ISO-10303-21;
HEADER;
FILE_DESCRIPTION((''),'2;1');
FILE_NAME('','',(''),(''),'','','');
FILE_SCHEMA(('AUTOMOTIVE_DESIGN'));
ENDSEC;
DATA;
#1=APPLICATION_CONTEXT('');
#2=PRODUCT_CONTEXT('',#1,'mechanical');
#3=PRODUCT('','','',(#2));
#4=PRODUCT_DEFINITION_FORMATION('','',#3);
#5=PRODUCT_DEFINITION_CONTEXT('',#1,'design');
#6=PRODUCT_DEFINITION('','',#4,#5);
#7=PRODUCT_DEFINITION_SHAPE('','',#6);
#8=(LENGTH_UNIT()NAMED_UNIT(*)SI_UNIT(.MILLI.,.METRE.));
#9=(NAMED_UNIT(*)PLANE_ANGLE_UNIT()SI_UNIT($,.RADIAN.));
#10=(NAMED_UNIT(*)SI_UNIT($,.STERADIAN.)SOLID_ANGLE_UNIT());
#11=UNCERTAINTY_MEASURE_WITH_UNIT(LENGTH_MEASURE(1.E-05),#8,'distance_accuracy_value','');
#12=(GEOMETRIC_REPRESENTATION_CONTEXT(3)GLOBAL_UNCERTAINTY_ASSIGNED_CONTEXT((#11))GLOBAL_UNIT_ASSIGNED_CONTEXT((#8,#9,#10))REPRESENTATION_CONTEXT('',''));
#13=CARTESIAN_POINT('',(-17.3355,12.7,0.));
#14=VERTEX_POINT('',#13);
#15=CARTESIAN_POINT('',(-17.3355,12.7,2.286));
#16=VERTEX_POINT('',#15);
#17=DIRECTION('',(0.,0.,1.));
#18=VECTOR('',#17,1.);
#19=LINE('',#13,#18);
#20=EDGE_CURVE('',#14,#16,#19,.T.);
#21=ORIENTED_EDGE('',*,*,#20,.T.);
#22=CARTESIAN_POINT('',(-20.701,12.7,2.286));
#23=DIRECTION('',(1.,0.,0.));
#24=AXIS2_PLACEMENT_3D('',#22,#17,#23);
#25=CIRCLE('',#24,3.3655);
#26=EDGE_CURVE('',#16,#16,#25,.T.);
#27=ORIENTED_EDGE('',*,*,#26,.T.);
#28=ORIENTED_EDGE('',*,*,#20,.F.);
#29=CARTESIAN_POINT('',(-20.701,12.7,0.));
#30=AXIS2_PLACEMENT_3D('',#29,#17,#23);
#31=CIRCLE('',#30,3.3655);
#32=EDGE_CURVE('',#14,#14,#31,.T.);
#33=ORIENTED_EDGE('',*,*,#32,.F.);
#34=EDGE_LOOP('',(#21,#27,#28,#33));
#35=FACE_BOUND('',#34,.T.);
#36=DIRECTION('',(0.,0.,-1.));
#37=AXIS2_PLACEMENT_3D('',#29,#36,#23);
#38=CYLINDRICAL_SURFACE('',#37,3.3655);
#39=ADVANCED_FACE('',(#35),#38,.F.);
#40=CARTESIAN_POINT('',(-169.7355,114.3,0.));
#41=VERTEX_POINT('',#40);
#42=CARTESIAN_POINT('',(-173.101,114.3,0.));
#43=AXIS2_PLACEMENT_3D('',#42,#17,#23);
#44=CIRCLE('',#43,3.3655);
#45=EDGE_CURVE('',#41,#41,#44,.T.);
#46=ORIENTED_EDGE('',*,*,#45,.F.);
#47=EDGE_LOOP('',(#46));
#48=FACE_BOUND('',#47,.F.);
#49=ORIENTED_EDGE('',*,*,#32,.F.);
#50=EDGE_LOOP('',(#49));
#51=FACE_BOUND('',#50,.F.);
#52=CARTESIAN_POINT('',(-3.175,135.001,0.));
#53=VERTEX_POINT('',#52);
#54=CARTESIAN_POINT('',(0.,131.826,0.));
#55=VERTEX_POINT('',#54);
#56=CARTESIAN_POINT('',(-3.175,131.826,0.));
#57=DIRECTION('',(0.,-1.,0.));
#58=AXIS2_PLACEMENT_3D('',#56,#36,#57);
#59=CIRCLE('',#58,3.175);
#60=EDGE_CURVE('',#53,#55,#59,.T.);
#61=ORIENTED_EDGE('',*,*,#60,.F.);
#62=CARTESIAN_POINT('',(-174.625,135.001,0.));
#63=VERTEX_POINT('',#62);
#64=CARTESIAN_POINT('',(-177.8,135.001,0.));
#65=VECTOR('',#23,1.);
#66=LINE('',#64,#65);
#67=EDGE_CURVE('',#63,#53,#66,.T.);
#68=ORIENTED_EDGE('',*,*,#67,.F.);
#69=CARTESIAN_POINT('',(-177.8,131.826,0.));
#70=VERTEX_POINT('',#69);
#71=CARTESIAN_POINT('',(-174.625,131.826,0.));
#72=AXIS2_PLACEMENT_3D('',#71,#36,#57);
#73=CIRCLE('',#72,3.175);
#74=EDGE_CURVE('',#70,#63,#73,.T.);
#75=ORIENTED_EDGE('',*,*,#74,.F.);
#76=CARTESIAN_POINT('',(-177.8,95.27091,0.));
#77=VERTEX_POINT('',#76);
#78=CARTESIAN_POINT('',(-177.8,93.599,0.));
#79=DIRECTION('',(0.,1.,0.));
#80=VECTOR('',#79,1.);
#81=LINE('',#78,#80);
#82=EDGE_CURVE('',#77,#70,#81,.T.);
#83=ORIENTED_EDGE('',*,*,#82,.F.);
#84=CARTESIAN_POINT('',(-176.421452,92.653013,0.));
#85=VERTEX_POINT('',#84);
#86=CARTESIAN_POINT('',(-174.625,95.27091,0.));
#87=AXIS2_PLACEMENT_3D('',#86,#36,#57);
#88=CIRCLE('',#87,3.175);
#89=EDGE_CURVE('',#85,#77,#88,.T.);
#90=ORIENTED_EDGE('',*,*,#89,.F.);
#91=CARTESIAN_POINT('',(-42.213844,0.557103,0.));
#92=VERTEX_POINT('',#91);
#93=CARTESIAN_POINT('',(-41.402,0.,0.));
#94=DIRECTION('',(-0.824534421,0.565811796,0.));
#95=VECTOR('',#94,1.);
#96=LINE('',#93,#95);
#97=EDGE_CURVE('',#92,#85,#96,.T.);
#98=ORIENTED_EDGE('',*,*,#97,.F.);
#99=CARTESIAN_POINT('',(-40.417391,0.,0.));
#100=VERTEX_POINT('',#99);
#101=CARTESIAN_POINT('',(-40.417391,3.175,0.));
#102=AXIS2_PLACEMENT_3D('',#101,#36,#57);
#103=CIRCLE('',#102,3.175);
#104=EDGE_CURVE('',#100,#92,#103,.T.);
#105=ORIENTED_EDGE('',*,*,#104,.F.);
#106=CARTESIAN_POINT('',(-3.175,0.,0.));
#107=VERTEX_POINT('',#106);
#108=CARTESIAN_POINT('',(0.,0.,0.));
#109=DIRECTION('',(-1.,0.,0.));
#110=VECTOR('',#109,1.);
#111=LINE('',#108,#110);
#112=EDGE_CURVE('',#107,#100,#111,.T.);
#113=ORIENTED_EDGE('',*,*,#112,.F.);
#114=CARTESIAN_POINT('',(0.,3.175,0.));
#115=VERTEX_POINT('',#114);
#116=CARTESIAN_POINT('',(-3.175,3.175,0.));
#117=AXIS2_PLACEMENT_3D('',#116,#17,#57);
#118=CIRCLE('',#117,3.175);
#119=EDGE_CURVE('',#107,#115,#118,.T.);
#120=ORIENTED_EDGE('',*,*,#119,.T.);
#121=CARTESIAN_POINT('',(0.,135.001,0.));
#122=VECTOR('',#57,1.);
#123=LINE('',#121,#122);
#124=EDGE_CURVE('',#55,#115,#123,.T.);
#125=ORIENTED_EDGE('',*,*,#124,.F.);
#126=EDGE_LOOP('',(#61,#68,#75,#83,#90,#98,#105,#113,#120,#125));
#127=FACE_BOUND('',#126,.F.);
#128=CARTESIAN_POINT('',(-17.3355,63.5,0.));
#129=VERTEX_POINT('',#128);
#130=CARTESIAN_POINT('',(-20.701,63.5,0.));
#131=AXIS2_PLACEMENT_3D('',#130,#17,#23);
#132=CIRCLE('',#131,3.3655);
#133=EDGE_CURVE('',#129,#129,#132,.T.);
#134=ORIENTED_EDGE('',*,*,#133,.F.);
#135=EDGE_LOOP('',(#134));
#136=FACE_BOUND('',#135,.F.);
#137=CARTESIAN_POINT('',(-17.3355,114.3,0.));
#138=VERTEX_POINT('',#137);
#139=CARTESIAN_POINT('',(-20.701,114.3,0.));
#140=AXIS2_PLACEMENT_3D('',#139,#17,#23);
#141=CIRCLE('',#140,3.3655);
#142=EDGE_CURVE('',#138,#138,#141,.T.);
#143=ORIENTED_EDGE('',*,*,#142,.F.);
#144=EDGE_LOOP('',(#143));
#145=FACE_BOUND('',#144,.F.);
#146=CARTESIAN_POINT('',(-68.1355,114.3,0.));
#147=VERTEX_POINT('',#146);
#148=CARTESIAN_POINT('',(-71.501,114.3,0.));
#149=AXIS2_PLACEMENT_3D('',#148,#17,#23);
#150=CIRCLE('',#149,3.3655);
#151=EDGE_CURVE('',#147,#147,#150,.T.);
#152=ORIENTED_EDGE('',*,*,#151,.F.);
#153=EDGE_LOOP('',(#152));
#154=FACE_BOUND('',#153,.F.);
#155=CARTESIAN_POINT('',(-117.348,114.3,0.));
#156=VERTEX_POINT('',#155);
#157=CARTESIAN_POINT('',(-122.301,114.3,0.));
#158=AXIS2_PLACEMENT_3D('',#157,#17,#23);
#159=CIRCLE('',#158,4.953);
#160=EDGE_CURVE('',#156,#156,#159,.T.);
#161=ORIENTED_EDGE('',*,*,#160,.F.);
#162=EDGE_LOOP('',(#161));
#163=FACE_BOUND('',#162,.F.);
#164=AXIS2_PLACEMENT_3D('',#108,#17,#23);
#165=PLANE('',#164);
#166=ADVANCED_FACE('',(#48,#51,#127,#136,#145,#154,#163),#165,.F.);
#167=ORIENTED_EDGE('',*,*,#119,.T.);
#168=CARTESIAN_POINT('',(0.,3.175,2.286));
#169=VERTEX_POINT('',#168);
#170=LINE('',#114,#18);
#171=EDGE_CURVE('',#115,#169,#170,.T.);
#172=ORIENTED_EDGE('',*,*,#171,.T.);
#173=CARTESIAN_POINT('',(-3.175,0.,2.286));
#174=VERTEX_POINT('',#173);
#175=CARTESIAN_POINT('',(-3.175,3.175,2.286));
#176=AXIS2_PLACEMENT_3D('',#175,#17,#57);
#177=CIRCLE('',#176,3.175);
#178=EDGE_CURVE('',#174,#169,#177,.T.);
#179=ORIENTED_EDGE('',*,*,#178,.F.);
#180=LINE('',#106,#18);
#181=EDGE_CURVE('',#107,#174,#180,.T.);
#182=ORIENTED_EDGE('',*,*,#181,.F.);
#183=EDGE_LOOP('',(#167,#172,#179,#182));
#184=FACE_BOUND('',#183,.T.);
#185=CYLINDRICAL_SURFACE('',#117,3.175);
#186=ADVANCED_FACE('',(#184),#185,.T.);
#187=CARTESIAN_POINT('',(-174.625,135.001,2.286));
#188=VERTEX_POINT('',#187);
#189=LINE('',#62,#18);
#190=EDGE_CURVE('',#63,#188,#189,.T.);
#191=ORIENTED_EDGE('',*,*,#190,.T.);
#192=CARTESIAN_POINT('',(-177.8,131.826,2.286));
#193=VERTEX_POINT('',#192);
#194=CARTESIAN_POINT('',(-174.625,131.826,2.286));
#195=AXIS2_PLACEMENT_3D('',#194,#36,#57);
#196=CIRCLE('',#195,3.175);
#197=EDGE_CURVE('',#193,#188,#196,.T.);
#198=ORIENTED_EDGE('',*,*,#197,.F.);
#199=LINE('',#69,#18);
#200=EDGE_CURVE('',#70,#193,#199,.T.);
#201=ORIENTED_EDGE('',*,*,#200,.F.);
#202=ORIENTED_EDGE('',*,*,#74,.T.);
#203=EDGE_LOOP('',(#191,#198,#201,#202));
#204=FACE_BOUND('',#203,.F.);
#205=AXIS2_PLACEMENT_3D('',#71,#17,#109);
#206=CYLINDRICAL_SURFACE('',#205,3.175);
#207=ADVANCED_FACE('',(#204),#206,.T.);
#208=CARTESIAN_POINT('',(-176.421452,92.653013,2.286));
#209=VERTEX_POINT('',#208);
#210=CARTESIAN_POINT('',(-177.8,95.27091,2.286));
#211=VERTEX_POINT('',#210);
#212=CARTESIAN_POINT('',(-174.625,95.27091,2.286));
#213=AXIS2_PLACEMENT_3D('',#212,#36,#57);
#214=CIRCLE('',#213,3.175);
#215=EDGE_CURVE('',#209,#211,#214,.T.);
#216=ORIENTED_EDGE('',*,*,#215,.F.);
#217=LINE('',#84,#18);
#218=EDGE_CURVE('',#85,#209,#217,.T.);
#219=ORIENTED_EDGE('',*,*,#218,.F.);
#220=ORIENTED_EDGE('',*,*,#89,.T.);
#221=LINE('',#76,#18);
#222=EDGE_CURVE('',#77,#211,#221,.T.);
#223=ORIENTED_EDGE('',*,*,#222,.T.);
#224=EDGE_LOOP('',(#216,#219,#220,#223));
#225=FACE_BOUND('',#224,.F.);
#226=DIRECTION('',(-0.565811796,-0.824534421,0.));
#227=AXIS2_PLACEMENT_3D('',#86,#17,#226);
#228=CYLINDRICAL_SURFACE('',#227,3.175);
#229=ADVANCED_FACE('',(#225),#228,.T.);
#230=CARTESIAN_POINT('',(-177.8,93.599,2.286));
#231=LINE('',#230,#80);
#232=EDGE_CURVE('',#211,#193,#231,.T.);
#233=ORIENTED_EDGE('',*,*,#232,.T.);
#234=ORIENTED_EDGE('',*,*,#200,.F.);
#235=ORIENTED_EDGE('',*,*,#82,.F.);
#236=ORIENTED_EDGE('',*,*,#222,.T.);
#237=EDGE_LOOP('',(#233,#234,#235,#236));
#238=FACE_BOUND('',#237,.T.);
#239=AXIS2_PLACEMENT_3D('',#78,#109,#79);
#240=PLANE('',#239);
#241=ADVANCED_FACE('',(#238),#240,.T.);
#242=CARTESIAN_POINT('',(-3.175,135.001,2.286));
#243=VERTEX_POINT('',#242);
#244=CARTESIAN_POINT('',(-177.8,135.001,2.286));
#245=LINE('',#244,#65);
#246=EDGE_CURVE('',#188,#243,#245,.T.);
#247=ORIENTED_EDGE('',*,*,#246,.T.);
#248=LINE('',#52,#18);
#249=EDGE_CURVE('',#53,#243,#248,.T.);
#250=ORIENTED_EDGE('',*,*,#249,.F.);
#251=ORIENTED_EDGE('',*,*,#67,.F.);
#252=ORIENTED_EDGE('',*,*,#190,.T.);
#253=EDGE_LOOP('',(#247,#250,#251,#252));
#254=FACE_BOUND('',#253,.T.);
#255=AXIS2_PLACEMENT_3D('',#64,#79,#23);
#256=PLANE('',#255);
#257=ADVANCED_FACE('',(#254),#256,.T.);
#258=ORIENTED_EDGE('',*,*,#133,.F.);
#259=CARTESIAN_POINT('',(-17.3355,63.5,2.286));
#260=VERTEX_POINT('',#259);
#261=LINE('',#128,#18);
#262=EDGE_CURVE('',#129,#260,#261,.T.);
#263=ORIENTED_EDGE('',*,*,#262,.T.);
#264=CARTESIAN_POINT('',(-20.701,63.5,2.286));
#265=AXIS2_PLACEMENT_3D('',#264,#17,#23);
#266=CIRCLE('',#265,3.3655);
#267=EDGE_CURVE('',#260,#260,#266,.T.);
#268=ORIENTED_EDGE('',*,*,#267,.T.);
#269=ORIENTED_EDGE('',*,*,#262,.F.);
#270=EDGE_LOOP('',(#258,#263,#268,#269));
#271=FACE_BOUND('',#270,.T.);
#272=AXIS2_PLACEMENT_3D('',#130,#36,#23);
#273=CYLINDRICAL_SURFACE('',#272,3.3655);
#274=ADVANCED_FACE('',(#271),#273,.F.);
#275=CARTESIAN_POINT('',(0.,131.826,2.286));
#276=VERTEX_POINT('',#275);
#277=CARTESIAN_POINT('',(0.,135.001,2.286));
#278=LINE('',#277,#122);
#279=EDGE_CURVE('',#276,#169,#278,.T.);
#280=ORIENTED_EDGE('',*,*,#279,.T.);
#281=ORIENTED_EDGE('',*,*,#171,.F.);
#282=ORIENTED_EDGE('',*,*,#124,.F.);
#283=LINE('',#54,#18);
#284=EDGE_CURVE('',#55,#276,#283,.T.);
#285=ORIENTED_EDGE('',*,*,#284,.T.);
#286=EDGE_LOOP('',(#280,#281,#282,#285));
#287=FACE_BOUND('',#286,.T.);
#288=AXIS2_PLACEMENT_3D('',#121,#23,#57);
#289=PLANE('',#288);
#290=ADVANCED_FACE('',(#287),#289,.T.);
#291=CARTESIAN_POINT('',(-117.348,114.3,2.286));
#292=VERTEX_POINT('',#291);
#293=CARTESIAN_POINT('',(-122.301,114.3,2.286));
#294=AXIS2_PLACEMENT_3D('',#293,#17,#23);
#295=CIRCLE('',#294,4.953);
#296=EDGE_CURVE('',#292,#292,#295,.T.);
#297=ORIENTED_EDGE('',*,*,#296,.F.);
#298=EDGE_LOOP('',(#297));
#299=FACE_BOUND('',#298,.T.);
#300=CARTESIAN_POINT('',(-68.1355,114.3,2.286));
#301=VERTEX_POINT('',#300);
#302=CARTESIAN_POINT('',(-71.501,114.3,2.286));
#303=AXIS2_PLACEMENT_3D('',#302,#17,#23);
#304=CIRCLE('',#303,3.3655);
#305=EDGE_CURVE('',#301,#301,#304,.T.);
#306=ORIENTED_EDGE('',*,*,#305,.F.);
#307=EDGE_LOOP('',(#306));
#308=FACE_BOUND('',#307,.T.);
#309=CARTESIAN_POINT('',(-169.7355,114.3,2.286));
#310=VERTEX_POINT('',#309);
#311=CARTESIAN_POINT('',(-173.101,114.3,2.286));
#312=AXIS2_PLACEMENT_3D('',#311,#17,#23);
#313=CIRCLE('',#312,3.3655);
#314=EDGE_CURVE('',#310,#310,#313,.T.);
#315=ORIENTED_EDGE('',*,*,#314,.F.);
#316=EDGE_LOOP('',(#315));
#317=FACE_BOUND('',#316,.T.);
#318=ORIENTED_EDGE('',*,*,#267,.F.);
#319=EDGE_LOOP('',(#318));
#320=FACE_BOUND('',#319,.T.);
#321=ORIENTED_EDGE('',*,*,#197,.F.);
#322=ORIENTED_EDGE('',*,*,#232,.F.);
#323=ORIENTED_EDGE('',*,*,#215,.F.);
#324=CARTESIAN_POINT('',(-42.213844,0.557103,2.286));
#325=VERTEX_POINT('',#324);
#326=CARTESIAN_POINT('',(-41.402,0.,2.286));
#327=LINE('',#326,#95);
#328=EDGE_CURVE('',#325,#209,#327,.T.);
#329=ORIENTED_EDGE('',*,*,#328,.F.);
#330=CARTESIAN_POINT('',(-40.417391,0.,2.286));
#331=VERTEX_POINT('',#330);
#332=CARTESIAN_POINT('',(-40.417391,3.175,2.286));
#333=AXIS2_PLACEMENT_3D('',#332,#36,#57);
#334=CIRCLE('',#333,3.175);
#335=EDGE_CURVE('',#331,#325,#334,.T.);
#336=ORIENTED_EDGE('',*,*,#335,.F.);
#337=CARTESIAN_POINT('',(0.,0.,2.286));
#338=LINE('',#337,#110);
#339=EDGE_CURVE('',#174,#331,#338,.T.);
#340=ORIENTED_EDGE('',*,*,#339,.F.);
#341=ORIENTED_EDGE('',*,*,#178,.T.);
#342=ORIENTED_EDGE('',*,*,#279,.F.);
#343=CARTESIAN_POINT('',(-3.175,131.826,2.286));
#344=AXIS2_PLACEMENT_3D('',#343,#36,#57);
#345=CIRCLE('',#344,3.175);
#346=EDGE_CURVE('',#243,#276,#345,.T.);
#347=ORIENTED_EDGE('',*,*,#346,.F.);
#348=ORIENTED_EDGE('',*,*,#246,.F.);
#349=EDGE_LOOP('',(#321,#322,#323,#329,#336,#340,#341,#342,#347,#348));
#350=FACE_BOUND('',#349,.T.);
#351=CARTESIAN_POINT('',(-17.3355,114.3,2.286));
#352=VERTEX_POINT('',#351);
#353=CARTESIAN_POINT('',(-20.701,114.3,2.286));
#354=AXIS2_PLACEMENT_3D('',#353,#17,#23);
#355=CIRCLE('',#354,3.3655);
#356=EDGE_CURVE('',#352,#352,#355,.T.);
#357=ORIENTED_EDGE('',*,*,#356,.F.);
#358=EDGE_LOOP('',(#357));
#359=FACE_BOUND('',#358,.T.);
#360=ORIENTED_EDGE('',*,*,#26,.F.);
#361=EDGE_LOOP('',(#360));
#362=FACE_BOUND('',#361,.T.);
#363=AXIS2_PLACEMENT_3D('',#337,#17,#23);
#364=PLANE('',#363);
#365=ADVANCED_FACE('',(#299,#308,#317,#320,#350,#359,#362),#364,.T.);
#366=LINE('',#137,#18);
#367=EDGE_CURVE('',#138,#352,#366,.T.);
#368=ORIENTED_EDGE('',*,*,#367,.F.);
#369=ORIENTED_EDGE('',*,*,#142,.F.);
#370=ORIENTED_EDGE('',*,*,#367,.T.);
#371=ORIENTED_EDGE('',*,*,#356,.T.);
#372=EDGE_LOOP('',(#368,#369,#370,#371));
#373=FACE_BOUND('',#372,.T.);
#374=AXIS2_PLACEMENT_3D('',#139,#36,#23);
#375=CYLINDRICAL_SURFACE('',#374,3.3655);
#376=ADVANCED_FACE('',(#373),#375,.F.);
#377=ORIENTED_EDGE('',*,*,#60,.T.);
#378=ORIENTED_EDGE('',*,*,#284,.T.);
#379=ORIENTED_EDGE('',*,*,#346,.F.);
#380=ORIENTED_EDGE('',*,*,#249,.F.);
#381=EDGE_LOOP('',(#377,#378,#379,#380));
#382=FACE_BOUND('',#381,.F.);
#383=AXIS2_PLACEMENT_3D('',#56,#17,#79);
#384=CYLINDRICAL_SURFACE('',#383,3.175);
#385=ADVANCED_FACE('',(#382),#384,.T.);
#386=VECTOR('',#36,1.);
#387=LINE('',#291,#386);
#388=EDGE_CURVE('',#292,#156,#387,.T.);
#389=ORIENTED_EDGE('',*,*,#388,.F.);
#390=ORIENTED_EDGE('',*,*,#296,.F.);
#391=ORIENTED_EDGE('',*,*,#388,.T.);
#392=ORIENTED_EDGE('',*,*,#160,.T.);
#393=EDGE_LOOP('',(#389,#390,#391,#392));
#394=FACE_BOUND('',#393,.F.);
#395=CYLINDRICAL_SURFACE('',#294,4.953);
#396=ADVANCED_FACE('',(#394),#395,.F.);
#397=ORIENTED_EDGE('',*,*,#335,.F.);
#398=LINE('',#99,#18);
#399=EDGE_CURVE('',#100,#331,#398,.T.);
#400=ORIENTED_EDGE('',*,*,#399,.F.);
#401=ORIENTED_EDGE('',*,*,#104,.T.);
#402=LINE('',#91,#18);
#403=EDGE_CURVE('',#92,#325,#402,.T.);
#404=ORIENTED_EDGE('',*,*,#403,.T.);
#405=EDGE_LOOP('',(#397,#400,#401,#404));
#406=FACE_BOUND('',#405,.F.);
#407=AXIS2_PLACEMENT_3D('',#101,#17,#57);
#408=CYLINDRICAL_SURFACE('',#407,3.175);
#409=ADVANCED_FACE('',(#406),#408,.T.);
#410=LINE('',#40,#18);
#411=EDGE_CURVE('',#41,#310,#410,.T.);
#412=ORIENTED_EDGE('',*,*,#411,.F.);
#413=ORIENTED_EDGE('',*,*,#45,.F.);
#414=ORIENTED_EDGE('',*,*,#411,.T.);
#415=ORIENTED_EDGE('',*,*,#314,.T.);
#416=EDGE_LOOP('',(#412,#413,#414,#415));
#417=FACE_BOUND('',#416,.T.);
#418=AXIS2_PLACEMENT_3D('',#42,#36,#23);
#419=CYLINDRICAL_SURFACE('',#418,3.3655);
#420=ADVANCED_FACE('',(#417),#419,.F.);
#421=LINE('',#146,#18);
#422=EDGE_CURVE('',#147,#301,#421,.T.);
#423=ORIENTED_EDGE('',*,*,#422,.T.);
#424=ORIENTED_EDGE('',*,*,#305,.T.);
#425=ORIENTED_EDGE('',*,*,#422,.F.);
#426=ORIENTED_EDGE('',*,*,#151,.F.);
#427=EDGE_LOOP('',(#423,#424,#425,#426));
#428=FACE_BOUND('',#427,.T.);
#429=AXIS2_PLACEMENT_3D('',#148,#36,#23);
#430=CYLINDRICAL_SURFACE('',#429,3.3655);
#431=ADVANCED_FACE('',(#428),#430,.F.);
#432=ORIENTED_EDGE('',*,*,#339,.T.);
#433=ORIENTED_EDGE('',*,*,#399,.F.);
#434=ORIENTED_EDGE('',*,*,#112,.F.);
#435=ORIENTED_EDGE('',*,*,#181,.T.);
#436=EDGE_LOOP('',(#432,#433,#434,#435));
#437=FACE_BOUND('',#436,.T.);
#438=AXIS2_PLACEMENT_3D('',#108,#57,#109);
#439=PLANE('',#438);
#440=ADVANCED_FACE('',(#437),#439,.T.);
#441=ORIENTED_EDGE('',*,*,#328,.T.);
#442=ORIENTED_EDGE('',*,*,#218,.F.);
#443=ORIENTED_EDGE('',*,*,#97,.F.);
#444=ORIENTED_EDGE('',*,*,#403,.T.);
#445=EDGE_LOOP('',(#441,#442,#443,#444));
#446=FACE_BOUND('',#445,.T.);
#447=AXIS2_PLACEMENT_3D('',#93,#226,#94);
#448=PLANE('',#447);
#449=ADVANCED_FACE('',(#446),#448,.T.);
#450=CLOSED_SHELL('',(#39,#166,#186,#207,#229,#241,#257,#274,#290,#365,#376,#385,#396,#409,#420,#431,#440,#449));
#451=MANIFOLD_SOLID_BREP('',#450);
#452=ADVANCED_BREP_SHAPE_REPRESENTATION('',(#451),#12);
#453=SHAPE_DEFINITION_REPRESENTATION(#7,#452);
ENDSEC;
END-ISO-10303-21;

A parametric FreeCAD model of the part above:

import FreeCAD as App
import Part
import Sketcher

V = App.Vector
Q = App.Units.Quantity


def edges_at(feature, points):
    """Names of the edges that pass closest to the given points."""
    edges = feature.Shape.Edges
    near = lambda p: min(range(len(edges)), key=lambda i: edges[i].distToShape(Part.Vertex(*p))[0])
    return sorted({f"Edge{near(p) + 1}" for p in points})


def add_polygon(sketch, points):
    """Adds a closed chain of lines whose ends are joined by coincident constraints."""
    first, n = sketch.GeometryCount, len(points)
    for a, b in zip(points, points[1:] + points[:1]):
        sketch.addGeometry(Part.LineSegment(App.Vector(*a, 0), App.Vector(*b, 0)), False)
    for i in range(n):
        sketch.addConstraint(Sketcher.Constraint("Coincident", first + i, 2, first + (i + 1) % n, 1))

doc = App.newDocument("Part")
params = doc.addObject("Spreadsheet::Sheet", "Params")
for row, (alias, value) in enumerate([
    ("sketch1_width", "7 in"),
    ("sketch1_diameter", "0.265 in"),
    ("sketch1_width2", "1.63 in"),
    ("sketch1_height", "5.315 in"),
    ("pad1_length", "0.09 in"),
    ("fillet_radius", "0.125 in"),
    ("sketch2_diameter", "0.39 in"),
], start=1):
    params.set(f"A{row}", alias)
    params.set(f"B{row}", "=" + value)
    params.setAlias(f"B{row}", alias)

body = doc.addObject("PartDesign::Body", "Body")

# Sketch on XY plane
sketch1 = body.newObject("Sketcher::SketchObject", "Sketch")
sketch1.AttachmentSupport = (doc.getObject("XY_Plane"), [""])
sketch1.MapMode = "FlatFace"
add_polygon(sketch1, [(-41.4, 0), (0, 0), (0, 135), (-177.8, 135), (-177.8, 93.6)])  # lines 0-4
sketch1.addGeometry(Part.Circle(V(-20.7, 12.7, 0), V(0, 0, 1), 3.4), False)  # 5
sketch1.addGeometry(Part.Circle(V(-20.7, 63.5, 0), V(0, 0, 1), 3.4), False)  # 6
sketch1.addGeometry(Part.Circle(V(-173.1, 114.3, 0), V(0, 0, 1), 3.4), False)  # 7
sketch1.addGeometry(Part.Circle(V(-122.3, 114.3, 0), V(0, 0, 1), 3.4), False)  # 8
sketch1.addGeometry(Part.Circle(V(-71.5, 114.3, 0), V(0, 0, 1), 3.4), False)  # 9
sketch1.addGeometry(Part.Circle(V(-20.7, 114.3, 0), V(0, 0, 1), 3.4), False)  # 10
sketch1.addConstraint([
    Sketcher.Constraint("Horizontal", 0),
    Sketcher.Constraint("Vertical", 1),
    Sketcher.Constraint("Horizontal", 2),
    Sketcher.Constraint("Vertical", 3),
    Sketcher.Constraint("Coincident", 0, 2, -1, 1),
    Sketcher.Constraint("Equal", 5, 6),
    Sketcher.Constraint("Equal", 6, 7),
    Sketcher.Constraint("Equal", 7, 8),
    Sketcher.Constraint("Equal", 8, 9),
    Sketcher.Constraint("Equal", 9, 10),
    Sketcher.Constraint("Horizontal", 7, 3, 8, 3),
    Sketcher.Constraint("Horizontal", 8, 3, 9, 3),
    Sketcher.Constraint("Horizontal", 9, 3, 10, 3),
    Sketcher.Constraint("Vertical", 5, 3, 6, 3),
    Sketcher.Constraint("Vertical", 6, 3, 10, 3),
    Sketcher.Constraint("Equal", 0, 3),
    Sketcher.Constraint("DistanceX", 2, 2, 2, 1, Q("7 in")),
    Sketcher.Constraint("Diameter", 5, Q("0.265 in")),
    Sketcher.Constraint("DistanceY", 5, 3, 6, 3, Q("2 in")),
    Sketcher.Constraint("DistanceY", 6, 3, 7, 3, Q("2 in")),
    Sketcher.Constraint("DistanceX", 7, 3, 8, 3, Q("2 in")),
    Sketcher.Constraint("DistanceX", 8, 3, 9, 3, Q("2 in")),
    Sketcher.Constraint("DistanceX", 9, 3, 6, 3, Q("2 in")),
    Sketcher.Constraint("DistanceX", 0, 1, 0, 2, Q("1.63 in")),
    Sketcher.Constraint("DistanceY", -1, 1, 5, 3, Q("0.5 in")),
    Sketcher.Constraint("DistanceY", 1, 1, 1, 2, Q("5.315 in")),
    Sketcher.Constraint("DistanceX", 5, 3, -1, 1, Q("0.815 in")),
])
sketch1.setExpression("Constraints[21]", "Params.sketch1_width")
sketch1.setExpression("Constraints[22]", "Params.sketch1_diameter")
sketch1.setExpression("Constraints[28]", "Params.sketch1_width2")
sketch1.setExpression("Constraints[30]", "Params.sketch1_height")
pad1 = body.newObject("PartDesign::Pad", "Pad")
pad1.Profile = sketch1
pad1.setExpression("Length", "Params.pad1_length")
doc.recompute()

fillet = body.newObject("PartDesign::Fillet", "Fillet")
fillet.Base = (pad1, edges_at(pad1, [
    (0, 135.001, 1.143),
    (0, 0, 1.143),
    (-41.402, 0, 1.143),
    (-177.8, 93.599, 1.143),
    (-177.8, 135.001, 1.143),
]))
fillet.setExpression("Radius", "Params.fillet_radius")

# Sketch on XY plane
sketch2 = body.newObject("Sketcher::SketchObject", "Sketch001")
sketch2.AttachmentSupport = (doc.getObject("XY_Plane"), [""])
sketch2.MapMode = "FlatFace"
sketch2.AttachmentOffset = App.Placement(V(0, 0, 0.09 * 25.4), App.Rotation())
sketch2.addGeometry(Part.Circle(V(-122.3, 114.3, 0), V(0, 0, 1), 5), False)
sketch2.addConstraint([
    Sketcher.Constraint("Diameter", 0, Q("0.39 in")),
    Sketcher.Constraint("DistanceY", -1, 1, 0, 3, Q("4.5 in")),
    Sketcher.Constraint("DistanceX", 0, 3, -1, 1, Q("4.815 in")),
])
sketch2.setExpression("Constraints[0]", "Params.sketch2_diameter")
pocket1 = body.newObject("PartDesign::Pocket", "Pocket")
pocket1.Profile = sketch2
pocket1.Type = "ThroughAll"

doc.recompute()
